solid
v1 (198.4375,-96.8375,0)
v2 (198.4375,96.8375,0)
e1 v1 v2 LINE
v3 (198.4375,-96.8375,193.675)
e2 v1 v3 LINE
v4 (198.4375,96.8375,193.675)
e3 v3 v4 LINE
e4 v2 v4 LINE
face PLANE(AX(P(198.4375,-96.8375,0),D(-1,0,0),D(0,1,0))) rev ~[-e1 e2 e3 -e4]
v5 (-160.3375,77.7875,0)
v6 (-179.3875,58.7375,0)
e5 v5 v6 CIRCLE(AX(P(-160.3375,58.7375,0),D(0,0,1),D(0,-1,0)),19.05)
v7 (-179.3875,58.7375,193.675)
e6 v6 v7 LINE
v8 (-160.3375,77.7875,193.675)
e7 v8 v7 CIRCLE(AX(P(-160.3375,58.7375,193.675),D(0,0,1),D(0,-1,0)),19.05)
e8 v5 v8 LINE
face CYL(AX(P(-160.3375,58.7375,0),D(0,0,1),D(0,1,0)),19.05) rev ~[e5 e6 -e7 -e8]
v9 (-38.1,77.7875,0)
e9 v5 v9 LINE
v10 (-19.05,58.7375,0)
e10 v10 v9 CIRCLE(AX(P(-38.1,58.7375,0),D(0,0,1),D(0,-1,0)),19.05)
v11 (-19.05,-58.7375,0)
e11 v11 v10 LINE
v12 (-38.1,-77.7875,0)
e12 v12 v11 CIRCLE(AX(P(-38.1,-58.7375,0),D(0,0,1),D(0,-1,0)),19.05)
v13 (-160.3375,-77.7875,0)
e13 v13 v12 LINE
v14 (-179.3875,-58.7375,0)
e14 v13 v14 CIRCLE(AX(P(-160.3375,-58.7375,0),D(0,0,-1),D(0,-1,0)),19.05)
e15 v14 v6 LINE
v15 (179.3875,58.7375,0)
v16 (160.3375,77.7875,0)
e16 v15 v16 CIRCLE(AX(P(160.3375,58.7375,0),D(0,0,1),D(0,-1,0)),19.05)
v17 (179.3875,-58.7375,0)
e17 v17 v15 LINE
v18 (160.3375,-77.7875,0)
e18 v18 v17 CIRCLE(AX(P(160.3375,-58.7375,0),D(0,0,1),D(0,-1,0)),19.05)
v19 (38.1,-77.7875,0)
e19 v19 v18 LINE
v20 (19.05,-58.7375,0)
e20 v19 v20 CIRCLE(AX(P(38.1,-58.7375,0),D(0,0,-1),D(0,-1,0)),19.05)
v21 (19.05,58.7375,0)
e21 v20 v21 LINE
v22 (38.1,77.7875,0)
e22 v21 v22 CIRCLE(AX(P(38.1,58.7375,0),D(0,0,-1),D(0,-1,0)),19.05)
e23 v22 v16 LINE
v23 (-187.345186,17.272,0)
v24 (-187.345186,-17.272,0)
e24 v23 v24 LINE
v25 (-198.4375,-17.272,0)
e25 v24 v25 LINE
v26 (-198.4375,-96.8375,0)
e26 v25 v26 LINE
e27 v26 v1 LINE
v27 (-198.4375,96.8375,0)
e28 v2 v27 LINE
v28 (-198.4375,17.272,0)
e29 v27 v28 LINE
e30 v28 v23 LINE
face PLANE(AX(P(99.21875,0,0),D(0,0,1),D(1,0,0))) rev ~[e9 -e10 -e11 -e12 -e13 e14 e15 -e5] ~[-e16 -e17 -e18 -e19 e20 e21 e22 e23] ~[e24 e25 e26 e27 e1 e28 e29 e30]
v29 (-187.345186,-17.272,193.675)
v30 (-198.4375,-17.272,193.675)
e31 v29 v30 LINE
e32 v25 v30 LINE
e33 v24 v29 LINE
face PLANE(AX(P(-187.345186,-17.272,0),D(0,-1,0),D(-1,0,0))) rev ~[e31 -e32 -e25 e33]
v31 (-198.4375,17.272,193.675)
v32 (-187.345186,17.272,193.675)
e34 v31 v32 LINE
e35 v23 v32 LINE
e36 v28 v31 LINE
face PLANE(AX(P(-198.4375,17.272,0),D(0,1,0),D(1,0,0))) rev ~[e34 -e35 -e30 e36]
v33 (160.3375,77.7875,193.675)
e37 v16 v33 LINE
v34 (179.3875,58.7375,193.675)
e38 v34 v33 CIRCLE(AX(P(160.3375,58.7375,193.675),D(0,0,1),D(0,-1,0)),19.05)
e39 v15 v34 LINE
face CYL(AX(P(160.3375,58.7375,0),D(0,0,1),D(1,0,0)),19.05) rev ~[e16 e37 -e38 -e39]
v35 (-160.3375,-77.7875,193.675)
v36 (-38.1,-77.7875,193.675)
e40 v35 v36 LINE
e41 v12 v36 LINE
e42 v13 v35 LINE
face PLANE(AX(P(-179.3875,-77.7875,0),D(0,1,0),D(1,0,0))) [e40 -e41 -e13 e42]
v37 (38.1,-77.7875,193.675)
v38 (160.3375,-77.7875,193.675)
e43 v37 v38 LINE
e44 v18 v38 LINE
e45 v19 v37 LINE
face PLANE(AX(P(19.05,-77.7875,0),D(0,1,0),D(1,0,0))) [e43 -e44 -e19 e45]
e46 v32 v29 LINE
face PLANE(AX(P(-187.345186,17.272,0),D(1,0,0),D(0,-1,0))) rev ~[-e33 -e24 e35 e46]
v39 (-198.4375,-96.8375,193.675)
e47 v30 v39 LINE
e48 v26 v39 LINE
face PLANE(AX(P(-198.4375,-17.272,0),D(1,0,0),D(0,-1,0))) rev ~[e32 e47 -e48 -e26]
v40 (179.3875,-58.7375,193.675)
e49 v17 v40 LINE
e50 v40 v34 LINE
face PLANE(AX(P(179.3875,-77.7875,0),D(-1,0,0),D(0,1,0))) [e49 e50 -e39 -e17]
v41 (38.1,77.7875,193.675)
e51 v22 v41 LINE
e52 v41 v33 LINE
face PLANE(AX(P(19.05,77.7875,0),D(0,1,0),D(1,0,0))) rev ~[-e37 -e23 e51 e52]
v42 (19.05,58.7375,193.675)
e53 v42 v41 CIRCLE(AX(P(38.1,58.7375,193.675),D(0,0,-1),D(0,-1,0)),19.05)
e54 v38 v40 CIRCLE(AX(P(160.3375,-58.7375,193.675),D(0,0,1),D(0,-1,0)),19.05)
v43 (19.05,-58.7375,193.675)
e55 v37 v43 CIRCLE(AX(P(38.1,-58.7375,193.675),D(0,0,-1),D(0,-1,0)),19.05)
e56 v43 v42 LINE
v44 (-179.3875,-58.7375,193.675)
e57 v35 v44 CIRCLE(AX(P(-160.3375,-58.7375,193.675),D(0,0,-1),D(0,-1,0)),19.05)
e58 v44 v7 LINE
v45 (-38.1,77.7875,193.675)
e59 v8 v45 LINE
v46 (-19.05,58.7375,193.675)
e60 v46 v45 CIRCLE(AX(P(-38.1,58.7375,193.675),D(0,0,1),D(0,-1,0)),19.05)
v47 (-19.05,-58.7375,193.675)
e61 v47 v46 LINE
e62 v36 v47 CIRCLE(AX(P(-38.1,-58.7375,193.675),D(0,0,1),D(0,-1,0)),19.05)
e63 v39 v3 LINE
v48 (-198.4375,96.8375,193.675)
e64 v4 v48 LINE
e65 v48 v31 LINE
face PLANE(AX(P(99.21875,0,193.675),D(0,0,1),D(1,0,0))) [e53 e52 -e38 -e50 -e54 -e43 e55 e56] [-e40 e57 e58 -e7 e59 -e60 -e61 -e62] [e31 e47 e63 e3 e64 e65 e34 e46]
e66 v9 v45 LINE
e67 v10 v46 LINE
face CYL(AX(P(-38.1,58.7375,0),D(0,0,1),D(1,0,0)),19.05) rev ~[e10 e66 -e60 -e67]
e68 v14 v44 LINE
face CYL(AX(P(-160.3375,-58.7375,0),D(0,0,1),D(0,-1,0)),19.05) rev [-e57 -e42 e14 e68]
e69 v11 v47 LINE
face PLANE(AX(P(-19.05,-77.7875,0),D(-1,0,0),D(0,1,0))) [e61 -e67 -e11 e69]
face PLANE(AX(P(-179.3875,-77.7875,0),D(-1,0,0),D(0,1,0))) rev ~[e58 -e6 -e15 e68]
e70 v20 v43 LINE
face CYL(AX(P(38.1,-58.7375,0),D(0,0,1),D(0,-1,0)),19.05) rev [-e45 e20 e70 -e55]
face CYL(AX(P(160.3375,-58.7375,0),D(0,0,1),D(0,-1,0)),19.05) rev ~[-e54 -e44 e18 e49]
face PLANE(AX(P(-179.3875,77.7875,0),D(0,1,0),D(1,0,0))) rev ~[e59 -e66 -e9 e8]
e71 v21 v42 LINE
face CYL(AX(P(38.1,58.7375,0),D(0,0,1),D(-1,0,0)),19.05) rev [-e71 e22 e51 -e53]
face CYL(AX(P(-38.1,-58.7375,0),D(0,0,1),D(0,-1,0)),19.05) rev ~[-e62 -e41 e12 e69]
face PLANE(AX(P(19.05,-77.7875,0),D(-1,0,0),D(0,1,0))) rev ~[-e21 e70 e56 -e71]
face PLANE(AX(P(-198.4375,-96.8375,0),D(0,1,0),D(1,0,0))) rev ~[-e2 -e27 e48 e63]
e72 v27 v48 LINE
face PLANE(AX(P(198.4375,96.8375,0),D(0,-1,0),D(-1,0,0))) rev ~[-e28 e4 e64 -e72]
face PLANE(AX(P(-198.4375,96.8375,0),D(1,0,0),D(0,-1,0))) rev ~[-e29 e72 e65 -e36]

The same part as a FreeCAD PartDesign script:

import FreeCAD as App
import Part
import Sketcher
from FreeCAD import Vector
Q = App.Units.Quantity


def edges_at(feature, points):
    """Names of the edges that pass closest to the given points."""
    edges = feature.Shape.Edges
    near = lambda p: min(range(len(edges)), key=lambda i: edges[i].distToShape(Part.Vertex(*p))[0])
    return sorted({f"Edge{near(p) + 1}" for p in points})

doc = App.newDocument("Part")
body = doc.addObject("PartDesign::Body", "Body")

sketch1 = body.newObject("Sketcher::SketchObject", "Sketch")
sketch1.AttachmentSupport = (doc.getObject("XY_Plane"), [""])
sketch1.MapMode = "FlatFace"
sketch1.addGeometry([
    Part.LineSegment(Vector(198, -97, 0), Vector(198, 97, 0)),
    Part.LineSegment(Vector(198, 97, 0), Vector(-198, 97, 0)),
    Part.LineSegment(Vector(-198, 97, 0), Vector(-198, 17, 0)),
    Part.LineSegment(Vector(-198, 17, 0), Vector(-187, 17, 0)),
    Part.LineSegment(Vector(-187, 17, 0), Vector(-187, -17, 0)),
    Part.LineSegment(Vector(-187, -17, 0), Vector(-198, -17, 0)),
    Part.LineSegment(Vector(-198, -17, 0), Vector(-198, -97, 0)),
    Part.LineSegment(Vector(-198, -97, 0), Vector(198, -97, 0)),
    Part.LineSegment(Vector(-19, -78, 0), Vector(-179, -78, 0)),
    Part.LineSegment(Vector(-179, -78, 0), Vector(-179, 78, 0)),
    Part.LineSegment(Vector(-179, 78, 0), Vector(-19, 78, 0)),
    Part.LineSegment(Vector(-19, 78, 0), Vector(-19, -78, 0)),
    Part.LineSegment(Vector(179, -78, 0), Vector(19, -78, 0)),
    Part.LineSegment(Vector(19, -78, 0), Vector(19, 78, 0)),
    Part.LineSegment(Vector(19, 78, 0), Vector(179, 78, 0)),
    Part.LineSegment(Vector(179, 78, 0), Vector(179, -78, 0)),
], False)
sketch1.addConstraint([
    Sketcher.Constraint("Coincident", 0, 2, 1, 1),
    Sketcher.Constraint("Coincident", 1, 2, 2, 1),
    Sketcher.Constraint("Coincident", 2, 2, 3, 1),
    Sketcher.Constraint("Coincident", 3, 2, 4, 1),
    Sketcher.Constraint("Coincident", 4, 2, 5, 1),
    Sketcher.Constraint("Coincident", 5, 2, 6, 1),
    Sketcher.Constraint("Coincident", 6, 2, 7, 1),
    Sketcher.Constraint("Coincident", 7, 2, 0, 1),
    Sketcher.Constraint("Coincident", 8, 2, 9, 1),
    Sketcher.Constraint("Coincident", 9, 2, 10, 1),
    Sketcher.Constraint("Coincident", 10, 2, 11, 1),
    Sketcher.Constraint("Coincident", 11, 2, 8, 1),
    Sketcher.Constraint("Coincident", 12, 2, 13, 1),
    Sketcher.Constraint("Coincident", 13, 2, 14, 1),
    Sketcher.Constraint("Coincident", 14, 2, 15, 1),
    Sketcher.Constraint("Coincident", 15, 2, 12, 1),
    Sketcher.Constraint("Vertical", 0),
    Sketcher.Constraint("Horizontal", 1),
    Sketcher.Constraint("Vertical", 2),
    Sketcher.Constraint("Horizontal", 3),
    Sketcher.Constraint("Vertical", 4),
    Sketcher.Constraint("Horizontal", 5),
    Sketcher.Constraint("Vertical", 6),
    Sketcher.Constraint("Horizontal", 7),
    Sketcher.Constraint("Horizontal", 8),
    Sketcher.Constraint("Vertical", 9),
    Sketcher.Constraint("Horizontal", 10),
    Sketcher.Constraint("Vertical", 11),
    Sketcher.Constraint("Horizontal", 12),
    Sketcher.Constraint("Vertical", 13),
    Sketcher.Constraint("Horizontal", 14),
    Sketcher.Constraint("Vertical", 15),
    Sketcher.Constraint("Symmetric", 0, 2, 6, 2, -1, 1),
    Sketcher.Constraint("Symmetric", 10, 2, 12, 2, -1, 1),
    Sketcher.Constraint("Symmetric", 8, 2, 14, 2, -1, 1),
    Sketcher.Constraint("Symmetric", 2, 2, 5, 2, -1),
    Sketcher.Constraint("Horizontal", 11, 2, 12, 2),
    Sketcher.Constraint("DistanceY", 4, 2, 4, 1, Q("1.36 in")),
    Sketcher.Constraint("DistanceX", 11, 2, 12, 2, Q("1.5 in")),
    Sketcher.Constraint("DistanceX", 1, 2, 1, 1, Q("15.625 in")),
    Sketcher.Constraint("DistanceX", 8, 2, 8, 1, Q("6.3125 in")),
    Sketcher.Constraint("DistanceY", 0, 1, 0, 2, Q("7.625 in")),
    Sketcher.Constraint("DistanceY", 9, 1, 9, 2, Q("6.125 in")),
    Sketcher.Constraint("DistanceX", 3, 1, 3, 2, Q("11.092314 mm")),
])
pad1 = body.newObject("PartDesign::Pad", "Pad")
pad1.Profile = sketch1
pad1.Length = Q("7.625 in")
doc.recompute()

fillet = body.newObject("PartDesign::Fillet", "Fillet")
fillet.Base = (pad1, edges_at(pad1, [
    (179.387, 77.787, 96.838),
    (179.387, -77.787, 96.838),
    (19.05, 77.787, 96.838),
    (19.05, -77.787, 96.838),
    (-19.05, 77.787, 96.838),
    (-19.05, -77.787, 96.838),
    (-179.387, 77.787, 96.838),
    (-179.387, -77.787, 96.838),
]))
fillet.Radius = Q("0.75 in")

doc.recompute()
